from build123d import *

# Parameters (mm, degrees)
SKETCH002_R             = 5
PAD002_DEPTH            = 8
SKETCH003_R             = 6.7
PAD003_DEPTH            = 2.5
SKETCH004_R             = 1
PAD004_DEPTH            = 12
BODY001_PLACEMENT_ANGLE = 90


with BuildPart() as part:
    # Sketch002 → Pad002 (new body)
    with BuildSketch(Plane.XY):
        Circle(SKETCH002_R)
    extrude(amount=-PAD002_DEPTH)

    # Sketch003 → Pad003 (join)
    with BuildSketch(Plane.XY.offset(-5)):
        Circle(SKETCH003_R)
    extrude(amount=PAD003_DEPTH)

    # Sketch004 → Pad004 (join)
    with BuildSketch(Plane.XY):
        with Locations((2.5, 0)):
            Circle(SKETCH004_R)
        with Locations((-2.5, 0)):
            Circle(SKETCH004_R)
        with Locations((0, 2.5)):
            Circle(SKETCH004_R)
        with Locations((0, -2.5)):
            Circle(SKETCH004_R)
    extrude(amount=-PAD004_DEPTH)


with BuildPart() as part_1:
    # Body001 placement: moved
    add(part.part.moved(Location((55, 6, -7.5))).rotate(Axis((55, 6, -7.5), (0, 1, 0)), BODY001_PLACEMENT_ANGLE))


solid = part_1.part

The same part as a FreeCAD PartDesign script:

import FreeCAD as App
import Part
import Sketcher

V = App.Vector

doc = App.newDocument("Part")
body = doc.addObject("PartDesign::Body", "Body")

sketch1 = body.newObject("Sketcher::SketchObject", "Sketch")
sketch1.AttachmentSupport = (doc.getObject("XY_Plane"), [""])
sketch1.MapMode = "FlatFace"
sketch1.addGeometry(Part.Circle(V(0, 0, 0), V(0, 0, 1), 5), False)
sketch1.addConstraint(Sketcher.Constraint("Coincident", 0, 3, -1, 1))
sketch1.addConstraint(Sketcher.Constraint("Diameter", 0, 10.0))
pad1 = body.newObject("PartDesign::Pad", "Pad")
pad1.Profile = sketch1
pad1.Length = 8
pad1.Reversed = True

sketch2 = body.newObject("Sketcher::SketchObject", "Sketch001")
sketch2.AttachmentSupport = (doc.getObject("XY_Plane"), [""])
sketch2.MapMode = "FlatFace"
sketch2.AttachmentOffset = App.Placement(V(0, 0, -5), App.Rotation())
sketch2.addGeometry(Part.Circle(V(0, 0, 0), V(0, 0, 1), 6.7), False)
sketch2.addConstraint(Sketcher.Constraint("Coincident", 0, 3, -1, 1))
sketch2.addConstraint(Sketcher.Constraint("Diameter", 0, 13.4))
pad2 = body.newObject("PartDesign::Pad", "Pad001")
pad2.Profile = sketch2
pad2.Length = 2.5

sketch3 = body.newObject("Sketcher::SketchObject", "Sketch002")
sketch3.AttachmentSupport = (doc.getObject("XY_Plane"), [""])
sketch3.MapMode = "FlatFace"
sketch3.addGeometry(Part.Circle(V(2.5, 0, 0), V(0, 0, 1), 1), False)
sketch3.addGeometry(Part.Circle(V(-2.5, 0, 0), V(0, 0, 1), 1), False)
sketch3.addGeometry(Part.Circle(V(0, 2.5, 0), V(0, 0, 1), 1), False)
sketch3.addGeometry(Part.Circle(V(0, -2.5, 0), V(0, 0, 1), 1), False)
sketch3.addConstraint(Sketcher.Constraint("Equal", 0, 1))
sketch3.addConstraint(Sketcher.Constraint("Equal", 1, 2))
sketch3.addConstraint(Sketcher.Constraint("Equal", 2, 3))
sketch3.addConstraint(Sketcher.Constraint("Symmetric", 0, 3, 1, 3, -1, 1))
sketch3.addConstraint(Sketcher.Constraint("Symmetric", 2, 3, 3, 3, -1, 1))
sketch3.addConstraint(Sketcher.Constraint("PointOnObject", 0, 3, -1))
sketch3.addConstraint(Sketcher.Constraint("PointOnObject", 2, 3, -2))
sketch3.addConstraint(Sketcher.Constraint("Diameter", 0, 2.0))
sketch3.addConstraint(Sketcher.Constraint("DistanceX", 1, 3, 0, 3, 5.0))
sketch3.addConstraint(Sketcher.Constraint("DistanceY", 3, 3, 2, 3, 5.0))
pad3 = body.newObject("PartDesign::Pad", "Pad002")
pad3.Profile = sketch3
pad3.Length = 12
pad3.Reversed = True
body2 = doc.addObject("PartDesign::Body", "Body001")
doc.recompute()

body.Placement = App.Placement(V(55, 6, -7.5), App.Rotation(V(0, 1, 0), 90))
boolean = body2.newObject("PartDesign::Boolean", "Boolean")
boolean.Type = "Fuse"
boolean.addObjects([body])

doc.recompute()
